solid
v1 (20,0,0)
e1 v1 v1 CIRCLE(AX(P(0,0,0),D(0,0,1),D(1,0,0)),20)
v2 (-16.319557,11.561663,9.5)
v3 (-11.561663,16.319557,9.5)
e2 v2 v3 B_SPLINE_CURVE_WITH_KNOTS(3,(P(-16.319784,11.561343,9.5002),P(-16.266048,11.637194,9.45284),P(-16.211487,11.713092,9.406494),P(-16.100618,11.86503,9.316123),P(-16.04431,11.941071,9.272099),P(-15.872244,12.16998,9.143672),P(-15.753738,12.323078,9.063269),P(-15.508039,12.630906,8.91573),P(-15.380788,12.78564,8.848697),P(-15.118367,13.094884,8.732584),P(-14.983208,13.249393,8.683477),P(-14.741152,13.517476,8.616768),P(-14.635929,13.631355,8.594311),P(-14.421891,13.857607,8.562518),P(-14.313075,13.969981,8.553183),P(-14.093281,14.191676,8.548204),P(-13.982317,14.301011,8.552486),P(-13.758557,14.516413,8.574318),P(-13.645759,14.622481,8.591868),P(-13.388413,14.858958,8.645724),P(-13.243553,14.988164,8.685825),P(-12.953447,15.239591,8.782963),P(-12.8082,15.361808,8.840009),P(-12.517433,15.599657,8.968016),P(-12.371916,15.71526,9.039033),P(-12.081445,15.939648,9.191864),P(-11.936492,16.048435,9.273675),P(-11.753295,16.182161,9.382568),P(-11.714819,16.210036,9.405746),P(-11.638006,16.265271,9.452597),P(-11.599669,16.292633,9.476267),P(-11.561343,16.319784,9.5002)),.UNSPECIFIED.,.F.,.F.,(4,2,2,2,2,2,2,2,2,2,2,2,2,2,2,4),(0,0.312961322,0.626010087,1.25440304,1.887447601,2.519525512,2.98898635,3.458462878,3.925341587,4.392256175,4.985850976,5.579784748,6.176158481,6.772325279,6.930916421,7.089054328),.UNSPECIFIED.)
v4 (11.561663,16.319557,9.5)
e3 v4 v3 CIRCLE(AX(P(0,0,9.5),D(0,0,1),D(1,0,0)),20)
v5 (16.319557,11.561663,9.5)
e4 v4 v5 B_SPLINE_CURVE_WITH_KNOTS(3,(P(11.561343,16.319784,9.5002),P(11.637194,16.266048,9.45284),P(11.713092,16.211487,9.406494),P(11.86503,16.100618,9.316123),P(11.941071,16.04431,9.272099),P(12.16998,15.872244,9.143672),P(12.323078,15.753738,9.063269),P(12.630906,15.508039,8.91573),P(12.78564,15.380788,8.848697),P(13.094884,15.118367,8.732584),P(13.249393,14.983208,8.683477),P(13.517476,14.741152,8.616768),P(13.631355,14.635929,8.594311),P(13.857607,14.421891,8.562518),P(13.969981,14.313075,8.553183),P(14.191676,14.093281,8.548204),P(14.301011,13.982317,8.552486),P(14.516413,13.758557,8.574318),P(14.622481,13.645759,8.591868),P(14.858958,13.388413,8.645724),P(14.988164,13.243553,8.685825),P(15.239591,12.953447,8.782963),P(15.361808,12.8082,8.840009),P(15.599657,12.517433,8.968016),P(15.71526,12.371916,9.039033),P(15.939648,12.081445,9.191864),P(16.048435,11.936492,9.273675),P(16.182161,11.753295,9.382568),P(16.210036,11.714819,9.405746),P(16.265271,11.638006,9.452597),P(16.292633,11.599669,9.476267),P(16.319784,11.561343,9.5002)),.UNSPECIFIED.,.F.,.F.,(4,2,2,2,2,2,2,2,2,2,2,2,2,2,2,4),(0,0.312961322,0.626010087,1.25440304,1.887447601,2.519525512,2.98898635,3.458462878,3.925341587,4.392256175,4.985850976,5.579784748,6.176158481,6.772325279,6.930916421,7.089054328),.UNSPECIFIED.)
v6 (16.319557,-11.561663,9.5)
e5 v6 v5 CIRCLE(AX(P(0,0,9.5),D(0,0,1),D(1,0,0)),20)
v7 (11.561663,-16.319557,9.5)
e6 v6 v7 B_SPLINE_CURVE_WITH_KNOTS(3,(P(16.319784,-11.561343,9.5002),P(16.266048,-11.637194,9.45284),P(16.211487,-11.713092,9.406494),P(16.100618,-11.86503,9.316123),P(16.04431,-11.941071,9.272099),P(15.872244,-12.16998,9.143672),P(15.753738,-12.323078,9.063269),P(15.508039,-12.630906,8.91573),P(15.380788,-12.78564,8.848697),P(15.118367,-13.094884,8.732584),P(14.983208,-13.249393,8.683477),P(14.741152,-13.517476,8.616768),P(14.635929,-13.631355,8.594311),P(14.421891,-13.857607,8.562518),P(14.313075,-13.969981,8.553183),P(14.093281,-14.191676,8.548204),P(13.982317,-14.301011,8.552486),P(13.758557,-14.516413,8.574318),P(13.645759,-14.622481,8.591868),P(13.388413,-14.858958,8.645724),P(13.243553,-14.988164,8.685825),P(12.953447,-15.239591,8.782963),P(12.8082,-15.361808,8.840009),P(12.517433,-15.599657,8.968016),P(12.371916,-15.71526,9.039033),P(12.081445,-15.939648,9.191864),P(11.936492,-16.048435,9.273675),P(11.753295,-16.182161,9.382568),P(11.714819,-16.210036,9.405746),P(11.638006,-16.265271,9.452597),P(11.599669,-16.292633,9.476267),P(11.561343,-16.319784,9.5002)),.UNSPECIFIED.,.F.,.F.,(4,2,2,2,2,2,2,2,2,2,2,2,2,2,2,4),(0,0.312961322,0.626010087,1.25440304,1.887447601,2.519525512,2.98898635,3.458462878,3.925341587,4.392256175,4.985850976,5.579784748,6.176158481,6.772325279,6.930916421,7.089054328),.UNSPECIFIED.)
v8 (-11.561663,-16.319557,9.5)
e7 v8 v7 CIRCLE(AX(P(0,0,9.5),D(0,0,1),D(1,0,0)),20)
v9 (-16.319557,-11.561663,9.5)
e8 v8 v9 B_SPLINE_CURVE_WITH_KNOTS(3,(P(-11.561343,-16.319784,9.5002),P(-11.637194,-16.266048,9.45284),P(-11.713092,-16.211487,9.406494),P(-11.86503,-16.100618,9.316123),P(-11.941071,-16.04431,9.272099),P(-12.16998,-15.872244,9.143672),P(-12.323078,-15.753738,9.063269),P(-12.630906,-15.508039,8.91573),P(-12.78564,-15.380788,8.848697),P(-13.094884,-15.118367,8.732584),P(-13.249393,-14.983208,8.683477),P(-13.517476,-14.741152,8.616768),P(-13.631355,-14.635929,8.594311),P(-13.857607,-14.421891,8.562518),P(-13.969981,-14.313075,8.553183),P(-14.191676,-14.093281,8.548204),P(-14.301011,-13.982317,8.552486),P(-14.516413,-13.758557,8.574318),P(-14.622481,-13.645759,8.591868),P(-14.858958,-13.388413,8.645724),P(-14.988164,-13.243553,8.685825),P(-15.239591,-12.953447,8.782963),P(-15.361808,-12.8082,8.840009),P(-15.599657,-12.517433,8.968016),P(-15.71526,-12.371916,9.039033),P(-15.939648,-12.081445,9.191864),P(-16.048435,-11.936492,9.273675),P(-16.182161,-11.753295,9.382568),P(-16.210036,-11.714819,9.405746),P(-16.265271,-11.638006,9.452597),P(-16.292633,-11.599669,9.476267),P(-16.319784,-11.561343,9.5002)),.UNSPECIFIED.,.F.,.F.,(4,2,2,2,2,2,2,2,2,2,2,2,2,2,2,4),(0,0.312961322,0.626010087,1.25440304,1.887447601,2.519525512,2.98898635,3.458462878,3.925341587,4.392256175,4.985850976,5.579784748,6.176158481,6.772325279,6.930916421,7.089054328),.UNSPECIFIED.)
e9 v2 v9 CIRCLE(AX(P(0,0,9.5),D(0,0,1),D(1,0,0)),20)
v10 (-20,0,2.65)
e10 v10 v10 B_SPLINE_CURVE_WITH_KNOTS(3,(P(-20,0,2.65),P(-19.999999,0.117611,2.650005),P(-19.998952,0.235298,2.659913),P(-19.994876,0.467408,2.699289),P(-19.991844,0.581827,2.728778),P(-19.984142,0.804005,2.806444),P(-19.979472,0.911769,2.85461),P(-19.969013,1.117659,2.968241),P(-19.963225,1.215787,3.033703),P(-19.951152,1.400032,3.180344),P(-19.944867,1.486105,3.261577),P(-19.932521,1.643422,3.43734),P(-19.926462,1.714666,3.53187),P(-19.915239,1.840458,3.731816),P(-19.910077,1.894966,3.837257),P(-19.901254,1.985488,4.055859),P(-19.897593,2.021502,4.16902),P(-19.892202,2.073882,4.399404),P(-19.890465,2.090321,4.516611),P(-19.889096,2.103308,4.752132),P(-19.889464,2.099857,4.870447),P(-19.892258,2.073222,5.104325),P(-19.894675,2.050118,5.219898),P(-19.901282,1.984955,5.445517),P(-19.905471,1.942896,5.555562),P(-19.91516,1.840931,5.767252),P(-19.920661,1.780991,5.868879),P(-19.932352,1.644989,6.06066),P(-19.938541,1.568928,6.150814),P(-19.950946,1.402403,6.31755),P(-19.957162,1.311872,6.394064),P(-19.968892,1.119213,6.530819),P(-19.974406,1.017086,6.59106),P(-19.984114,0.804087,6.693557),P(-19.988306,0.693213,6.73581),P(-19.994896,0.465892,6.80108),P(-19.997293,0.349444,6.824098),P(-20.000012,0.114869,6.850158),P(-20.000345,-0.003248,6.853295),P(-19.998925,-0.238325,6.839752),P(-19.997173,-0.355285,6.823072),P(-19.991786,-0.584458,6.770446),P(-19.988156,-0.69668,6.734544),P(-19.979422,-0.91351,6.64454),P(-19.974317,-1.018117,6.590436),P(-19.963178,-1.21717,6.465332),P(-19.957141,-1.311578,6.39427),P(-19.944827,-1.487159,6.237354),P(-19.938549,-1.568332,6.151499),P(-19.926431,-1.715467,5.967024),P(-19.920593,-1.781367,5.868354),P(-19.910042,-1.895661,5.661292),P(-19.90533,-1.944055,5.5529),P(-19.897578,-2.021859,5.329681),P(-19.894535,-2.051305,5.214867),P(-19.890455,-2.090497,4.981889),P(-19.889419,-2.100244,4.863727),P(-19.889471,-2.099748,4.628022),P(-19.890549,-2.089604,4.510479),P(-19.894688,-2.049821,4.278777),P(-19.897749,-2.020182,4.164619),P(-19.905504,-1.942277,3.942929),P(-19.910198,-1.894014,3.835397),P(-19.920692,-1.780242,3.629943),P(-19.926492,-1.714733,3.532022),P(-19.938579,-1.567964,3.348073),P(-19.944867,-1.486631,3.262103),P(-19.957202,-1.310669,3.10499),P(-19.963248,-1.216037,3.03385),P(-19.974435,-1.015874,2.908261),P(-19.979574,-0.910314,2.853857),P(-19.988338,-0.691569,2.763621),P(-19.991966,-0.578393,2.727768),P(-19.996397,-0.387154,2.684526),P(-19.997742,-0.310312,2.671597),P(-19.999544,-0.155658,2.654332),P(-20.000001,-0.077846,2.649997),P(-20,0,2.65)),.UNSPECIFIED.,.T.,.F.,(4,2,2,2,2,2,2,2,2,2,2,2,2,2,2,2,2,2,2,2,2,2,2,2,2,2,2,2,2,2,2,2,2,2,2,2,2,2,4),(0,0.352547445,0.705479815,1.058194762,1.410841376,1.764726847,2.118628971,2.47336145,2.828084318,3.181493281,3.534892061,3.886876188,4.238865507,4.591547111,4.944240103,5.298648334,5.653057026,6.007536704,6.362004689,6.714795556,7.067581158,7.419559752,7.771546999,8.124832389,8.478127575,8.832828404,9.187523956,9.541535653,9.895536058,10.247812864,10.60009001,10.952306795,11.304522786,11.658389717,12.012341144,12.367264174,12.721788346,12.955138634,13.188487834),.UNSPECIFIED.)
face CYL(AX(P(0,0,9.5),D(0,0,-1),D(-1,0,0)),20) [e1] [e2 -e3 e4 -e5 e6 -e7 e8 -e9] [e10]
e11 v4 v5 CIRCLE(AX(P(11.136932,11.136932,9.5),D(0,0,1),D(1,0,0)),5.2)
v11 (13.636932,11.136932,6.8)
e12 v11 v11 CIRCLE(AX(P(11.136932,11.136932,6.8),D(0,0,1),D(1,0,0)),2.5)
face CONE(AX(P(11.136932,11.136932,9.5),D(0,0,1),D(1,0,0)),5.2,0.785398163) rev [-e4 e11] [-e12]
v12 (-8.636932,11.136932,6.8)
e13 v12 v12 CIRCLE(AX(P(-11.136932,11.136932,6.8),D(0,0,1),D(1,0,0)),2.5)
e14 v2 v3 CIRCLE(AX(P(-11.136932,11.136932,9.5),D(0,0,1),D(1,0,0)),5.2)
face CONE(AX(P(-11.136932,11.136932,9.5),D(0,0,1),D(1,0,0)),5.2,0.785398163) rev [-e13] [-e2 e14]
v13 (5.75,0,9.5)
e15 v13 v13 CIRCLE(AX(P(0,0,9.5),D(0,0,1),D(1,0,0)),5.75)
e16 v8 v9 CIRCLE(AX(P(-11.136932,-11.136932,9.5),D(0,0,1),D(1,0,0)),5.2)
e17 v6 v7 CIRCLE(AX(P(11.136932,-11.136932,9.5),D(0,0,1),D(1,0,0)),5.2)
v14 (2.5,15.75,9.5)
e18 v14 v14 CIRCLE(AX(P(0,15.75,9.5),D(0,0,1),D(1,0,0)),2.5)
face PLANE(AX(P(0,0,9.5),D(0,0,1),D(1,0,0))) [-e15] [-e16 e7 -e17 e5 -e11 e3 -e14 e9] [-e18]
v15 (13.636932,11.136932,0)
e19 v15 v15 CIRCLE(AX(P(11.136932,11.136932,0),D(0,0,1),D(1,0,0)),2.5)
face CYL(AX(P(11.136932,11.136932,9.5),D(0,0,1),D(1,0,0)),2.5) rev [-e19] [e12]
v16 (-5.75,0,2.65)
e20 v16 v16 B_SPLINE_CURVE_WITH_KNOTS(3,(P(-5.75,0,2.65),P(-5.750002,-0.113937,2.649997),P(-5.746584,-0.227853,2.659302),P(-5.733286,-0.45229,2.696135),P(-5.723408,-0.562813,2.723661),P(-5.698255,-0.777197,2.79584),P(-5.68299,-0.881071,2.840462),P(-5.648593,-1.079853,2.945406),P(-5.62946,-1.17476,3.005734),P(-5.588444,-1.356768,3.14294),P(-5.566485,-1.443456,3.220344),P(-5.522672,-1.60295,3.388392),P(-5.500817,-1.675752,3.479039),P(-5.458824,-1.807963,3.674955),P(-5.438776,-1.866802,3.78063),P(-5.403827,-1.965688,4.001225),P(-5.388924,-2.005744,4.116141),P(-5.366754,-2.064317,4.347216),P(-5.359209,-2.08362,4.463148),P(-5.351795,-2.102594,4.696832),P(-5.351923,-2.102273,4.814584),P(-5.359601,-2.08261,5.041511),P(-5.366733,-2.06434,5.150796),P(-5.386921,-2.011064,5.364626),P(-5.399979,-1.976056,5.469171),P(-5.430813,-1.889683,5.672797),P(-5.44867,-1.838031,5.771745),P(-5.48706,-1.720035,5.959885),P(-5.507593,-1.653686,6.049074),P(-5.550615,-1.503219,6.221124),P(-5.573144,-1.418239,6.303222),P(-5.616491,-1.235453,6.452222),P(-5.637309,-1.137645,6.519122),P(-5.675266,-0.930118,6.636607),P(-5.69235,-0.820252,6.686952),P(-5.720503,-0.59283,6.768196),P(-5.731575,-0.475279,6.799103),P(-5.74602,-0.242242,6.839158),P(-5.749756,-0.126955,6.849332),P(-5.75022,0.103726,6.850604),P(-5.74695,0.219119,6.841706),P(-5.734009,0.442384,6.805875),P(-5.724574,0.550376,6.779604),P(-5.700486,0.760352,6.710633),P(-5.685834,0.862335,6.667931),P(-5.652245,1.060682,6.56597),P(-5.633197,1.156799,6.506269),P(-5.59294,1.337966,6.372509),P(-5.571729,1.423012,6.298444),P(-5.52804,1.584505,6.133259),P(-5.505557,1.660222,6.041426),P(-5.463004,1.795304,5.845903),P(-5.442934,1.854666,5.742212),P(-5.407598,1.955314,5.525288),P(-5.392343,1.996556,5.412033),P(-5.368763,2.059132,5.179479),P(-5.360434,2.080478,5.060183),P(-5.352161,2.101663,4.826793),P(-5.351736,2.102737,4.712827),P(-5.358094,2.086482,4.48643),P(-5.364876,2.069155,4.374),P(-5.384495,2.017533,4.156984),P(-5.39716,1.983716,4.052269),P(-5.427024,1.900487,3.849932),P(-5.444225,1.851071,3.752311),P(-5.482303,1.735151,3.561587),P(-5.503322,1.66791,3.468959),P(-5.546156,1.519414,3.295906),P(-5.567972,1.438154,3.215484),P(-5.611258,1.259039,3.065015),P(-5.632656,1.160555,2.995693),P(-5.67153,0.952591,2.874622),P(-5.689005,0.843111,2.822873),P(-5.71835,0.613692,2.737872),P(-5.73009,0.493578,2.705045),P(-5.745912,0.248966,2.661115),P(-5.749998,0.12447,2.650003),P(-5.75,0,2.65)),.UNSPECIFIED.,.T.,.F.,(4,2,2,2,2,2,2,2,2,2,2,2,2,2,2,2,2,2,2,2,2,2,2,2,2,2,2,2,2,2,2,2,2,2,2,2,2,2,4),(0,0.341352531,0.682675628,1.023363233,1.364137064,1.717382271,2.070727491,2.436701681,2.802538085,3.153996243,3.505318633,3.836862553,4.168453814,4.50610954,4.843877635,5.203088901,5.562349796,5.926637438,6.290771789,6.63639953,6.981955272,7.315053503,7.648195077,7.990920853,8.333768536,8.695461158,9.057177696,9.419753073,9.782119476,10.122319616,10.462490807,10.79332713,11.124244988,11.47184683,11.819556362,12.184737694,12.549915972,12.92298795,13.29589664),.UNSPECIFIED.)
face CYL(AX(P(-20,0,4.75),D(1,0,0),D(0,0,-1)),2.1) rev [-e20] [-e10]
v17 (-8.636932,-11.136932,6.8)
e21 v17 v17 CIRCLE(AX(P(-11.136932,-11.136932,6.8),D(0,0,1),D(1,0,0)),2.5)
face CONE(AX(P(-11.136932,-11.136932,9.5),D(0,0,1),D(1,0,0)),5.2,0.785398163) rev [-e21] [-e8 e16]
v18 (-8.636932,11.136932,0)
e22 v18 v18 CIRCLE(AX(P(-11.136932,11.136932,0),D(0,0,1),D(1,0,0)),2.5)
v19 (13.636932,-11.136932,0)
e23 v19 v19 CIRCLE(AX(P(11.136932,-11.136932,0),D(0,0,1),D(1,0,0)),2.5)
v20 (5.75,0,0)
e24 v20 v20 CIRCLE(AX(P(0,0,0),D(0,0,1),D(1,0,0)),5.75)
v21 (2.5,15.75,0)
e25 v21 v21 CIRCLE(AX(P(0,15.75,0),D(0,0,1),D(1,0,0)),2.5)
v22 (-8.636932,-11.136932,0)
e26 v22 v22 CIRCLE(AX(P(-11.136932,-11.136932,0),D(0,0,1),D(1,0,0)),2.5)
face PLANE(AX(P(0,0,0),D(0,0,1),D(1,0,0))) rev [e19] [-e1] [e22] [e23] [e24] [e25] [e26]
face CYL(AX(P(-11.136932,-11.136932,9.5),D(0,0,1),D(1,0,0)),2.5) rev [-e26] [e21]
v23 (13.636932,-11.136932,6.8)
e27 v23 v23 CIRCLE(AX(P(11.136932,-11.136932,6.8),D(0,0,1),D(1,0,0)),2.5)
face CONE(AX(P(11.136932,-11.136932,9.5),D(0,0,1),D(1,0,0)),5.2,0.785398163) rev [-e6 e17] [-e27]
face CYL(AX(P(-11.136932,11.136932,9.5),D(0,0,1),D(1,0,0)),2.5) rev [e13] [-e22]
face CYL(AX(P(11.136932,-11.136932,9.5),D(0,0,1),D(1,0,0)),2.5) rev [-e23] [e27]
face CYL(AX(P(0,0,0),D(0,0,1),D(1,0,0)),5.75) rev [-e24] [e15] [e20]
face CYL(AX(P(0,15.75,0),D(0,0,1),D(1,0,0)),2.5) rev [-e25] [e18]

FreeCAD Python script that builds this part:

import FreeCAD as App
import Part
import Sketcher

doc = App.newDocument("Part")
body = doc.addObject("PartDesign::Body", "Body")

# Sketch on XY plane
sketch1 = doc.addObject("Sketcher::SketchObject", "Sketch")
body.addObject(sketch1)
sketch1.AttachmentSupport = (doc.XY_Plane, [""])
sketch1.MapMode = "FlatFace"
sketch1.addGeometry(Part.Circle(App.Vector(0, 0, 0), App.Vector(0, 0, 1), 20), False)
sketch1.addConstraint([
    Sketcher.Constraint("Coincident", 0, 3, -1, 1),
    Sketcher.Constraint("Diameter", 0, 40.0),
])
pad1 = doc.addObject("PartDesign::Pad", "Pad")
body.addObject(pad1)
pad1.Profile = sketch1
pad1.Length = 9.5

# Sketch on XY plane
sketch2 = doc.addObject("Sketcher::SketchObject", "Sketch001")
body.addObject(sketch2)
sketch2.AttachmentSupport = (doc.XY_Plane, [""])
sketch2.MapMode = "FlatFace"
sketch2.AttachmentOffset = App.Placement(App.Vector(0, 0, 9.5), App.Rotation())
sketch2.addGeometry([
    Part.Circle(App.Vector(-11.1, 11.1, 0), App.Vector(0, 0, 1), 2.5),
    Part.Circle(App.Vector(11.1, 11.1, 0), App.Vector(0, 0, 1), 2.5),
    Part.Circle(App.Vector(11.1, -11.1, 0), App.Vector(0, 0, 1), 2.5),
    Part.Circle(App.Vector(-11.1, -11.1, 0), App.Vector(0, 0, 1), 2.5),
], False)
sketch2.addConstraint([
    Sketcher.Constraint("Equal", 0, 1),
    Sketcher.Constraint("Equal", 1, 2),
    Sketcher.Constraint("Equal", 2, 3),
    Sketcher.Constraint("Symmetric", 0, 3, 2, 3, -1, 1),
    Sketcher.Constraint("Symmetric", 1, 3, 3, 3, -1, 1),
    Sketcher.Constraint("Symmetric", 0, 3, 1, 3, -2),
    Sketcher.Constraint("Diameter", 0, 5.0),
    Sketcher.Constraint("DistanceX", 0, 3, -1, 1, 11.136932),
    Sketcher.Constraint("DistanceY", -1, 1, 0, 3, 11.136932),
])
doc.recompute()
hole = doc.addObject("PartDesign::Hole", "Hole")
body.addObject(hole)
hole.Profile = sketch2
hole.ThreadType = "None"
hole.Diameter = 5
hole.DepthType = "ThroughAll"
hole.HoleCutType = "Countersink"
hole.HoleCutDiameter = 10.4
hole.HoleCutCountersinkAngle = 90

# Sketch on XY plane
sketch3 = doc.addObject("Sketcher::SketchObject", "Sketch002")
body.addObject(sketch3)
sketch3.AttachmentSupport = (doc.XY_Plane, [""])
sketch3.MapMode = "FlatFace"
sketch3.AttachmentOffset = App.Placement(App.Vector(0, 0, 9.5), App.Rotation())
sketch3.addGeometry(Part.Circle(App.Vector(0, 15.8, 0), App.Vector(0, 0, 1), 2.5), False)
sketch3.addConstraint([
    Sketcher.Constraint("PointOnObject", 0, 3, -2),
    Sketcher.Constraint("Diameter", 0, 5.0),
    Sketcher.Constraint("DistanceY", -1, 1, 0, 3, 15.75),
])
pocket1 = doc.addObject("PartDesign::Pocket", "Pocket")
body.addObject(pocket1)
pocket1.Profile = sketch3
pocket1.Type = "ThroughAll"

# Sketch on XY plane
sketch4 = doc.addObject("Sketcher::SketchObject", "Sketch003")
body.addObject(sketch4)
sketch4.AttachmentSupport = (doc.XY_Plane, [""])
sketch4.MapMode = "FlatFace"
sketch4.AttachmentOffset = App.Placement(App.Vector(0, 0, 9.5), App.Rotation())
sketch4.addGeometry(Part.Circle(App.Vector(0, 0, 0), App.Vector(0, 0, 1), 6), False)
sketch4.addConstraint([
    Sketcher.Constraint("Coincident", 0, 3, -1, 1),
    Sketcher.Constraint("Diameter", 0, 11.5),
])
pocket2 = doc.addObject("PartDesign::Pocket", "Pocket001")
body.addObject(pocket2)
pocket2.Profile = sketch4
pocket2.Type = "ThroughAll"

# Sketch on YZ plane
sketch5 = doc.addObject("Sketcher::SketchObject", "Sketch004")
body.addObject(sketch5)
sketch5.AttachmentSupport = (doc.YZ_Plane, [""])
sketch5.MapMode = "FlatFace"
sketch5.addGeometry(Part.Circle(App.Vector(0, 4.8, 0), App.Vector(0, 0, 1), 2.1), False)
sketch5.addConstraint([
    Sketcher.Constraint("PointOnObject", 0, 3, -2),
    Sketcher.Constraint("Diameter", 0, 4.2),
    Sketcher.Constraint("DistanceY", -1, 1, 0, 3, 4.75),
])
pocket3 = doc.addObject("PartDesign::Pocket", "Pocket002")
body.addObject(pocket3)
pocket3.Profile = sketch5
pocket3.Type = "ThroughAll"

doc.recompute()
